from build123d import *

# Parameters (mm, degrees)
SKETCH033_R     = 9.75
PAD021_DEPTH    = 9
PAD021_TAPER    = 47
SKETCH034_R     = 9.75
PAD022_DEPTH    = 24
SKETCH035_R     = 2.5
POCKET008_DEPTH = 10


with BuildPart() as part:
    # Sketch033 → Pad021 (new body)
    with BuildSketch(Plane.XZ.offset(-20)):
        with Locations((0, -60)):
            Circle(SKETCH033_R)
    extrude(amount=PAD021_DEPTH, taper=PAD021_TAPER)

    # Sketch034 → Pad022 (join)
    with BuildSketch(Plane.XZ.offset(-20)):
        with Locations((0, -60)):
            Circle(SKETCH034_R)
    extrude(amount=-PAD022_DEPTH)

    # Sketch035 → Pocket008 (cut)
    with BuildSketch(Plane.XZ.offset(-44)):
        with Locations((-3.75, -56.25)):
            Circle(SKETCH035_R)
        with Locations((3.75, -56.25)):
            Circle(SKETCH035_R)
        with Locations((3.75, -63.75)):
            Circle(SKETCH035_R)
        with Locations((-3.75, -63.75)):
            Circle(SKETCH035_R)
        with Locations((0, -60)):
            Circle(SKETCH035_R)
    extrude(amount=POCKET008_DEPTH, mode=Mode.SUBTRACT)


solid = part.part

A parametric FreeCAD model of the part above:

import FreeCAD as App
import Part
import Sketcher
from FreeCAD import Vector

doc = App.newDocument("Part")
body = doc.addObject("PartDesign::Body", "Body")

sketch1 = doc.addObject("Sketcher::SketchObject", "Sketch")
body.addObject(sketch1)
sketch1.AttachmentSupport = (doc.XZ_Plane, [""])
sketch1.MapMode = "FlatFace"
sketch1.AttachmentOffset = App.Placement(Vector(0, 0, -20), App.Rotation())
sketch1.addGeometry(Part.Circle(Vector(0, -60, 0), Vector(0, 0, 1), 10), False)
sketch1.addConstraint([
    Sketcher.Constraint("PointOnObject", 0, 3, -2),
    Sketcher.Constraint("Diameter", 0, 19.5),
    Sketcher.Constraint("DistanceY", 0, 3, -1, 1, 60.0),
])
pad1 = doc.addObject("PartDesign::Pad", "Pad")
body.addObject(pad1)
pad1.Profile = sketch1
pad1.Length = 9
pad1.TaperAngle = -47

sketch2 = doc.addObject("Sketcher::SketchObject", "Sketch001")
body.addObject(sketch2)
sketch2.AttachmentSupport = (doc.XZ_Plane, [""])
sketch2.MapMode = "FlatFace"
sketch2.AttachmentOffset = App.Placement(Vector(0, 0, -20), App.Rotation())
sketch2.addGeometry(Part.Circle(Vector(0, -60, 0), Vector(0, 0, 1), 10), False)
sketch2.addConstraint([
    Sketcher.Constraint("PointOnObject", 0, 3, -2),
    Sketcher.Constraint("Diameter", 0, 19.5),
    Sketcher.Constraint("DistanceY", 0, 3, -1, 1, 60.0),
])
pad2 = doc.addObject("PartDesign::Pad", "Pad001")
body.addObject(pad2)
pad2.Profile = sketch2
pad2.Length = 24
pad2.Reversed = True

sketch3 = doc.addObject("Sketcher::SketchObject", "Sketch002")
body.addObject(sketch3)
sketch3.AttachmentSupport = (doc.XZ_Plane, [""])
sketch3.MapMode = "FlatFace"
sketch3.AttachmentOffset = App.Placement(Vector(0, 0, -44), App.Rotation())
sketch3.addGeometry([
    Part.Circle(Vector(-3.8, -56.2, 0), Vector(0, 0, 1), 2.5),
    Part.Circle(Vector(3.8, -56.2, 0), Vector(0, 0, 1), 2.5),
    Part.Circle(Vector(3.8, -63.8, 0), Vector(0, 0, 1), 2.5),
    Part.Circle(Vector(-3.8, -63.8, 0), Vector(0, 0, 1), 2.5),
    Part.Circle(Vector(0, -60, 0), Vector(0, 0, 1), 2.5),
], False)
sketch3.addConstraint([
    Sketcher.Constraint("Equal", 0, 1),
    Sketcher.Constraint("Equal", 1, 2),
    Sketcher.Constraint("Equal", 2, 3),
    Sketcher.Constraint("Equal", 3, 4),
    Sketcher.Constraint("Symmetric", 0, 3, 1, 3, -2),
    Sketcher.Constraint("Symmetric", 2, 3, 3, 3, -2),
    Sketcher.Constraint("PointOnObject", 4, 3, -2),
    Sketcher.Constraint("Vertical", 1, 3, 2, 3),
    Sketcher.Constraint("Diameter", 0, 5.0),
    Sketcher.Constraint("DistanceY", 4, 3, -1, 1, 60.0),
    Sketcher.Constraint("DistanceX", 0, 3, 1, 3, 7.5),
    Sketcher.Constraint("DistanceY", 2, 3, 1, 3, 7.5),
    Sketcher.Constraint("DistanceY", 0, 3, -1, 1, 56.25),
])
pocket1 = doc.addObject("PartDesign::Pocket", "Pocket")
body.addObject(pocket1)
pocket1.Profile = sketch3
pocket1.Length = 10
pocket1.Reversed = True

doc.recompute()
